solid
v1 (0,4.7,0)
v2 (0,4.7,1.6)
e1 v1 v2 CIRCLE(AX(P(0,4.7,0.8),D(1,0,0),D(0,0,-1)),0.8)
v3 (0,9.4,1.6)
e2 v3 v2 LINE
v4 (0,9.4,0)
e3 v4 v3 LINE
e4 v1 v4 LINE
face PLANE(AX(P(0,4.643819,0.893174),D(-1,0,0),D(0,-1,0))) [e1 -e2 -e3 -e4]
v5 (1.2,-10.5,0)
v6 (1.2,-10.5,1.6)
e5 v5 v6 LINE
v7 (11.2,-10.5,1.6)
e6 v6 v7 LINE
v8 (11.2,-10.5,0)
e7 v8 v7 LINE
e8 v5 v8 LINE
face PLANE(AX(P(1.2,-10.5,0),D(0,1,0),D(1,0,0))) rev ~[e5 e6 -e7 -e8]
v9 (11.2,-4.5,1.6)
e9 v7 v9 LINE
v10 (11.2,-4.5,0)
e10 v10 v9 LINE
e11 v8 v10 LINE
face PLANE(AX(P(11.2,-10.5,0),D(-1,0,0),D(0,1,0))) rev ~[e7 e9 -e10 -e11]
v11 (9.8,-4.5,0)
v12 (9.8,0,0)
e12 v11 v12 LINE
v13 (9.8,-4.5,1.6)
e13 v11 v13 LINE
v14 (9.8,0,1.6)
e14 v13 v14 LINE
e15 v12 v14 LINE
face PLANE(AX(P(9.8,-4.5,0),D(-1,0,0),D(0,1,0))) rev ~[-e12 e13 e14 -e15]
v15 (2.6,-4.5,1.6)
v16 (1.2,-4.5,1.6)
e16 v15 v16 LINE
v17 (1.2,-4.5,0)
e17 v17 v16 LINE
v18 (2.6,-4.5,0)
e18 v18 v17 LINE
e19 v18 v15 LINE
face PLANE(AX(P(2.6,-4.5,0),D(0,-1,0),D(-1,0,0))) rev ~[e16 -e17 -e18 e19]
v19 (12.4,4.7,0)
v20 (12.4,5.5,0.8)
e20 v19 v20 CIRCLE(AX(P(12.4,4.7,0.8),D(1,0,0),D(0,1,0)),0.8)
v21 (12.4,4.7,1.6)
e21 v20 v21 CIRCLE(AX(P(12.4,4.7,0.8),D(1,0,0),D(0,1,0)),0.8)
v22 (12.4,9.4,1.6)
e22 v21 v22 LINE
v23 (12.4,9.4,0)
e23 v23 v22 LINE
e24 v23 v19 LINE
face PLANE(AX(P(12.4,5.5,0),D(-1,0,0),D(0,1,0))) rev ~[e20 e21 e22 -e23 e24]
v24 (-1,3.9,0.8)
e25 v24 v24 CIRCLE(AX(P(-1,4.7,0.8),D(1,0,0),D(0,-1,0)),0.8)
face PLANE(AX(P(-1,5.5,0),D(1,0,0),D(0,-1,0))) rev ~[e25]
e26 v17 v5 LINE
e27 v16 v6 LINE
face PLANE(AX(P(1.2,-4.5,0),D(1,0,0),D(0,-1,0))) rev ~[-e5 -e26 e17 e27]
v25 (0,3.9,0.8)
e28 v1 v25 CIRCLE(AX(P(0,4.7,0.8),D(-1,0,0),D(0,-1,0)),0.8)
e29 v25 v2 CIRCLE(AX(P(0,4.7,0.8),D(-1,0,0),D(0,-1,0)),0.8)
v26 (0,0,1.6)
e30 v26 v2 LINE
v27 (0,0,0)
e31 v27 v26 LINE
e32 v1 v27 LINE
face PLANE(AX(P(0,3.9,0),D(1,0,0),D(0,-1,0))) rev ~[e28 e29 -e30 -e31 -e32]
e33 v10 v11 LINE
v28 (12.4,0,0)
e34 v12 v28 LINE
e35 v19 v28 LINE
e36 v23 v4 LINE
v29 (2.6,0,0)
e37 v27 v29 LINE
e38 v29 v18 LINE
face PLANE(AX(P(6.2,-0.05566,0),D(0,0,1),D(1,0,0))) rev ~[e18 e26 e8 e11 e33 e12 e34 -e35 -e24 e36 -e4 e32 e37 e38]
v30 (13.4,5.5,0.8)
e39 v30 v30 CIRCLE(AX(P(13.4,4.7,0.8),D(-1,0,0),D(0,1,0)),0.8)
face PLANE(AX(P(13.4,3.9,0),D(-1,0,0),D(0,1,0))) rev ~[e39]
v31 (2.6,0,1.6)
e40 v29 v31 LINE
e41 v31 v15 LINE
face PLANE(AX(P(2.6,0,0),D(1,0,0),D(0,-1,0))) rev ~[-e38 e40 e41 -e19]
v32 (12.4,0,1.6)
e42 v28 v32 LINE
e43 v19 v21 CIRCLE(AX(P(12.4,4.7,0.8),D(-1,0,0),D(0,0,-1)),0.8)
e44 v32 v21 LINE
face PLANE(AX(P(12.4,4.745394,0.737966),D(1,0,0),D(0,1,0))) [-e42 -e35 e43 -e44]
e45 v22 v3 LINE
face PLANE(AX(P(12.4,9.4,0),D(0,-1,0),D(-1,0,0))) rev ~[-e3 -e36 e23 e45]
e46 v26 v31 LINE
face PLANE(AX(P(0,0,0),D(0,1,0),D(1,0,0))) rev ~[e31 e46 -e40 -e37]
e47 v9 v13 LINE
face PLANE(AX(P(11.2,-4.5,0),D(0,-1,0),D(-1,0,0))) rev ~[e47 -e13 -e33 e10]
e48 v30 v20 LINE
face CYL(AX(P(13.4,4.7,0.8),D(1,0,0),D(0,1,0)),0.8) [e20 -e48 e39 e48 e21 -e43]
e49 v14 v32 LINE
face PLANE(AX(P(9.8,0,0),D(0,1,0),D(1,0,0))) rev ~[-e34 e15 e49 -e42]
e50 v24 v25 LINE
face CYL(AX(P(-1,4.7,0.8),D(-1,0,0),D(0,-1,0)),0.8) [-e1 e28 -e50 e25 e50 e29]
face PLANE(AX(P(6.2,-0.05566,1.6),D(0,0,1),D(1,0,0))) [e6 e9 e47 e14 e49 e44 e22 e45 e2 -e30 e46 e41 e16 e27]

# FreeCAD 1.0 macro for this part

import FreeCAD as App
import Part
import Sketcher
Q = App.Units.Quantity

doc = App.newDocument("Part")
body = doc.addObject("PartDesign::Body", "Body")

# Sketch on XY plane
sketch1 = body.newObject("Sketcher::SketchObject", "Sketch")
sketch1.AttachmentSupport = (doc.getObject("XY_Plane"), [""])
sketch1.MapMode = "FlatFace"
sketch1.addGeometry([
    Part.LineSegment(App.Vector(0, 3.9, 0), App.Vector(0, 0, 0)),  # 0
    Part.LineSegment(App.Vector(0, 0, 0), App.Vector(2.6, 0, 0)),  # 1
    Part.LineSegment(App.Vector(2.6, 0, 0), App.Vector(2.6, -4.5, 0)),  # 2
    Part.LineSegment(App.Vector(2.6, -4.5, 0), App.Vector(1.2, -4.5, 0)),  # 3
    Part.LineSegment(App.Vector(1.2, -4.5, 0), App.Vector(1.2, -10.5, 0)),  # 4
    Part.LineSegment(App.Vector(1.2, -10.5, 0), App.Vector(11.2, -10.5, 0)),  # 5
    Part.LineSegment(App.Vector(11.2, -10.5, 0), App.Vector(11.2, -4.5, 0)),  # 6
    Part.LineSegment(App.Vector(11.2, -4.5, 0), App.Vector(9.8, -4.5, 0)),  # 7
    Part.LineSegment(App.Vector(9.8, -4.5, 0), App.Vector(9.8, 0, 0)),  # 8
    Part.LineSegment(App.Vector(9.8, 0, 0), App.Vector(12.4, 0, 0)),  # 9
    Part.LineSegment(App.Vector(12.4, 0, 0), App.Vector(12.4, 3.9, 0)),  # 10
    Part.LineSegment(App.Vector(12.4, 3.9, 0), App.Vector(13.4, 3.9, 0)),  # 11
    Part.LineSegment(App.Vector(13.4, 3.9, 0), App.Vector(13.4, 5.5, 0)),  # 12
    Part.LineSegment(App.Vector(13.4, 5.5, 0), App.Vector(12.4, 5.5, 0)),  # 13
    Part.LineSegment(App.Vector(12.4, 5.5, 0), App.Vector(12.4, 9.4, 0)),  # 14
    Part.LineSegment(App.Vector(12.4, 9.4, 0), App.Vector(0, 9.4, 0)),  # 15
    Part.LineSegment(App.Vector(0, 9.4, 0), App.Vector(0, 5.5, 0)),  # 16
    Part.LineSegment(App.Vector(0, 5.5, 0), App.Vector(-1, 5.5, 0)),  # 17
    Part.LineSegment(App.Vector(-1, 5.5, 0), App.Vector(-1, 3.9, 0)),  # 18
    Part.LineSegment(App.Vector(-1, 3.9, 0), App.Vector(0, 3.9, 0)),  # 19
], False)
sketch1.addConstraint([
    Sketcher.Constraint("Coincident", 0, 2, 1, 1),
    Sketcher.Constraint("Coincident", 1, 2, 2, 1),
    Sketcher.Constraint("Coincident", 2, 2, 3, 1),
    Sketcher.Constraint("Coincident", 3, 2, 4, 1),
    Sketcher.Constraint("Coincident", 4, 2, 5, 1),
    Sketcher.Constraint("Coincident", 5, 2, 6, 1),
    Sketcher.Constraint("Coincident", 6, 2, 7, 1),
    Sketcher.Constraint("Coincident", 7, 2, 8, 1),
    Sketcher.Constraint("Coincident", 8, 2, 9, 1),
    Sketcher.Constraint("Coincident", 9, 2, 10, 1),
    Sketcher.Constraint("Coincident", 10, 2, 11, 1),
    Sketcher.Constraint("Coincident", 11, 2, 12, 1),
    Sketcher.Constraint("Coincident", 12, 2, 13, 1),
    Sketcher.Constraint("Coincident", 13, 2, 14, 1),
    Sketcher.Constraint("Coincident", 14, 2, 15, 1),
    Sketcher.Constraint("Coincident", 15, 2, 16, 1),
    Sketcher.Constraint("Coincident", 16, 2, 17, 1),
    Sketcher.Constraint("Coincident", 17, 2, 18, 1),
    Sketcher.Constraint("Coincident", 18, 2, 19, 1),
    Sketcher.Constraint("Coincident", 19, 2, 0, 1),
    Sketcher.Constraint("Vertical", 0),
    Sketcher.Constraint("Horizontal", 1),
    Sketcher.Constraint("Vertical", 2),
    Sketcher.Constraint("Horizontal", 3),
    Sketcher.Constraint("Vertical", 4),
    Sketcher.Constraint("Horizontal", 5),
    Sketcher.Constraint("Vertical", 6),
    Sketcher.Constraint("Horizontal", 7),
    Sketcher.Constraint("Vertical", 8),
    Sketcher.Constraint("Horizontal", 9),
    Sketcher.Constraint("Vertical", 10),
    Sketcher.Constraint("Horizontal", 11),
    Sketcher.Constraint("Vertical", 12),
    Sketcher.Constraint("Horizontal", 13),
    Sketcher.Constraint("Vertical", 14),
    Sketcher.Constraint("Horizontal", 15),
    Sketcher.Constraint("Vertical", 16),
    Sketcher.Constraint("Horizontal", 17),
    Sketcher.Constraint("Vertical", 18),
    Sketcher.Constraint("Horizontal", 19),
    Sketcher.Constraint("Coincident", 0, 2, -1, 1),
    Sketcher.Constraint("PointOnObject", 8, 2, -1),
    Sketcher.Constraint("PointOnObject", 15, 2, -2),
    Sketcher.Constraint("Horizontal", 3, 2, 6, 2),
    Sketcher.Constraint("Horizontal", 13, 2, 16, 2),
    Sketcher.Constraint("Horizontal", 11, 2, 18, 2),
    Sketcher.Constraint("Vertical", 10, 2, 13, 2),
    Sketcher.Constraint("Equal", 3, 7),
    Sketcher.Constraint("Equal", 1, 9),
    Sketcher.Constraint("Equal", 13, 17),
    Sketcher.Constraint("Equal", 10, 14),
    Sketcher.Constraint("DistanceX", 5, 1, 5, 2, Q("10 mm")),
    Sketcher.Constraint("DistanceX", 11, 1, 11, 2, Q("1 mm")),
    Sketcher.Constraint("DistanceY", 4, 2, 4, 1, Q("6 mm")),
    Sketcher.Constraint("DistanceX", 1, 1, 1, 2, Q("2.6 mm")),
    Sketcher.Constraint("DistanceX", 3, 2, 3, 1, Q("1.4 mm")),
    Sketcher.Constraint("DistanceY", 0, 2, 0, 1, Q("3.9 mm")),
    Sketcher.Constraint("DistanceY", 2, 2, 2, 1, Q("4.5 mm")),
    Sketcher.Constraint("DistanceY", 12, 1, 12, 2, Q("1.6 mm")),
])
pad1 = body.newObject("PartDesign::Pad", "Pad")
pad1.Profile = sketch1
pad1.Length = 1.6

# Sketch on YZ plane
sketch2 = body.newObject("Sketcher::SketchObject", "Sketch001")
sketch2.AttachmentSupport = (doc.getObject("YZ_Plane"), [""])
sketch2.MapMode = "FlatFace"
sketch2.AttachmentOffset = App.Placement(App.Vector(0, 0, -1), App.Rotation())
sketch2.addGeometry([
    Part.LineSegment(App.Vector(6.2, 2.5, 0), App.Vector(6.2, -0.7, 0)),  # 0
    Part.LineSegment(App.Vector(6.2, -0.7, 0), App.Vector(3.1, -0.7, 0)),  # 1
    Part.LineSegment(App.Vector(3.1, -0.7, 0), App.Vector(3.1, 2.5, 0)),  # 2
    Part.LineSegment(App.Vector(3.1, 2.5, 0), App.Vector(6.2, 2.5, 0)),  # 3
    Part.Circle(App.Vector(4.7, 0.8, 0), App.Vector(0, 0, 1), 0.8),  # 4
], False)
sketch2.addConstraint([
    Sketcher.Constraint("Coincident", 0, 2, 1, 1),
    Sketcher.Constraint("Coincident", 1, 2, 2, 1),
    Sketcher.Constraint("Coincident", 2, 2, 3, 1),
    Sketcher.Constraint("Coincident", 3, 2, 0, 1),
    Sketcher.Constraint("Vertical", 0),
    Sketcher.Constraint("Horizontal", 1),
    Sketcher.Constraint("Vertical", 2),
    Sketcher.Constraint("Horizontal", 3),
    Sketcher.Constraint("Diameter", 4, Q("1.6 mm")),
    Sketcher.Constraint("DistanceX", -1, 1, 4, 3, Q("4.7 mm")),
    Sketcher.Constraint("DistanceY", -1, 1, 4, 3, Q("0.8 mm")),
    Sketcher.Constraint("DistanceX", 1, 2, 1, 1, Q("3.14566 mm")),
    Sketcher.Constraint("DistanceY", 0, 2, 0, 1, Q("3.226229 mm")),
    Sketcher.Constraint("DistanceX", -1, 1, 0, 2, Q("6.216649 mm")),
    Sketcher.Constraint("DistanceY", 0, 2, -1, 1, Q("0.71994 mm")),
])
pocket1 = body.newObject("PartDesign::Pocket", "Pocket")
pocket1.Profile = sketch2
pocket1.Length = 1
pocket1.Reversed = True

# Sketch on YZ plane
sketch3 = body.newObject("Sketcher::SketchObject", "Sketch002")
sketch3.AttachmentSupport = (doc.getObject("YZ_Plane"), [""])
sketch3.MapMode = "FlatFace"
sketch3.AttachmentOffset = App.Placement(App.Vector(0, 0, 13.4), App.Rotation())
sketch3.addGeometry([
    Part.LineSegment(App.Vector(3.3, 2.2, 0), App.Vector(3.3, -0.7, 0)),  # 0
    Part.LineSegment(App.Vector(3.3, -0.7, 0), App.Vector(6.2, -0.7, 0)),  # 1
    Part.LineSegment(App.Vector(6.2, -0.7, 0), App.Vector(6.2, 2.2, 0)),  # 2
    Part.LineSegment(App.Vector(6.2, 2.2, 0), App.Vector(3.3, 2.2, 0)),  # 3
    Part.Circle(App.Vector(4.7, 0.8, 0), App.Vector(0, 0, 1), 0.8),  # 4
], False)
sketch3.addConstraint([
    Sketcher.Constraint("Coincident", 0, 2, 1, 1),
    Sketcher.Constraint("Coincident", 1, 2, 2, 1),
    Sketcher.Constraint("Coincident", 2, 2, 3, 1),
    Sketcher.Constraint("Coincident", 3, 2, 0, 1),
    Sketcher.Constraint("Vertical", 0),
    Sketcher.Constraint("Horizontal", 1),
    Sketcher.Constraint("Vertical", 2),
    Sketcher.Constraint("Horizontal", 3),
    Sketcher.Constraint("Diameter", 4, Q("1.6 mm")),
    Sketcher.Constraint("DistanceX", -1, 1, 4, 3, Q("4.7 mm")),
    Sketcher.Constraint("DistanceY", -1, 1, 4, 3, Q("0.8 mm")),
    Sketcher.Constraint("DistanceY", 0, 2, 0, 1, Q("2.958158 mm")),
    Sketcher.Constraint("DistanceX", 1, 1, 1, 2, Q("2.903376 mm")),
    Sketcher.Constraint("DistanceX", 4, 3, 1, 2, Q("1.497082 mm")),
    Sketcher.Constraint("DistanceY", 0, 2, -1, 1, Q("0.741113 mm")),
])
pocket2 = body.newObject("PartDesign::Pocket", "Pocket001")
pocket2.Profile = sketch3
pocket2.Length = 1

doc.recompute()
